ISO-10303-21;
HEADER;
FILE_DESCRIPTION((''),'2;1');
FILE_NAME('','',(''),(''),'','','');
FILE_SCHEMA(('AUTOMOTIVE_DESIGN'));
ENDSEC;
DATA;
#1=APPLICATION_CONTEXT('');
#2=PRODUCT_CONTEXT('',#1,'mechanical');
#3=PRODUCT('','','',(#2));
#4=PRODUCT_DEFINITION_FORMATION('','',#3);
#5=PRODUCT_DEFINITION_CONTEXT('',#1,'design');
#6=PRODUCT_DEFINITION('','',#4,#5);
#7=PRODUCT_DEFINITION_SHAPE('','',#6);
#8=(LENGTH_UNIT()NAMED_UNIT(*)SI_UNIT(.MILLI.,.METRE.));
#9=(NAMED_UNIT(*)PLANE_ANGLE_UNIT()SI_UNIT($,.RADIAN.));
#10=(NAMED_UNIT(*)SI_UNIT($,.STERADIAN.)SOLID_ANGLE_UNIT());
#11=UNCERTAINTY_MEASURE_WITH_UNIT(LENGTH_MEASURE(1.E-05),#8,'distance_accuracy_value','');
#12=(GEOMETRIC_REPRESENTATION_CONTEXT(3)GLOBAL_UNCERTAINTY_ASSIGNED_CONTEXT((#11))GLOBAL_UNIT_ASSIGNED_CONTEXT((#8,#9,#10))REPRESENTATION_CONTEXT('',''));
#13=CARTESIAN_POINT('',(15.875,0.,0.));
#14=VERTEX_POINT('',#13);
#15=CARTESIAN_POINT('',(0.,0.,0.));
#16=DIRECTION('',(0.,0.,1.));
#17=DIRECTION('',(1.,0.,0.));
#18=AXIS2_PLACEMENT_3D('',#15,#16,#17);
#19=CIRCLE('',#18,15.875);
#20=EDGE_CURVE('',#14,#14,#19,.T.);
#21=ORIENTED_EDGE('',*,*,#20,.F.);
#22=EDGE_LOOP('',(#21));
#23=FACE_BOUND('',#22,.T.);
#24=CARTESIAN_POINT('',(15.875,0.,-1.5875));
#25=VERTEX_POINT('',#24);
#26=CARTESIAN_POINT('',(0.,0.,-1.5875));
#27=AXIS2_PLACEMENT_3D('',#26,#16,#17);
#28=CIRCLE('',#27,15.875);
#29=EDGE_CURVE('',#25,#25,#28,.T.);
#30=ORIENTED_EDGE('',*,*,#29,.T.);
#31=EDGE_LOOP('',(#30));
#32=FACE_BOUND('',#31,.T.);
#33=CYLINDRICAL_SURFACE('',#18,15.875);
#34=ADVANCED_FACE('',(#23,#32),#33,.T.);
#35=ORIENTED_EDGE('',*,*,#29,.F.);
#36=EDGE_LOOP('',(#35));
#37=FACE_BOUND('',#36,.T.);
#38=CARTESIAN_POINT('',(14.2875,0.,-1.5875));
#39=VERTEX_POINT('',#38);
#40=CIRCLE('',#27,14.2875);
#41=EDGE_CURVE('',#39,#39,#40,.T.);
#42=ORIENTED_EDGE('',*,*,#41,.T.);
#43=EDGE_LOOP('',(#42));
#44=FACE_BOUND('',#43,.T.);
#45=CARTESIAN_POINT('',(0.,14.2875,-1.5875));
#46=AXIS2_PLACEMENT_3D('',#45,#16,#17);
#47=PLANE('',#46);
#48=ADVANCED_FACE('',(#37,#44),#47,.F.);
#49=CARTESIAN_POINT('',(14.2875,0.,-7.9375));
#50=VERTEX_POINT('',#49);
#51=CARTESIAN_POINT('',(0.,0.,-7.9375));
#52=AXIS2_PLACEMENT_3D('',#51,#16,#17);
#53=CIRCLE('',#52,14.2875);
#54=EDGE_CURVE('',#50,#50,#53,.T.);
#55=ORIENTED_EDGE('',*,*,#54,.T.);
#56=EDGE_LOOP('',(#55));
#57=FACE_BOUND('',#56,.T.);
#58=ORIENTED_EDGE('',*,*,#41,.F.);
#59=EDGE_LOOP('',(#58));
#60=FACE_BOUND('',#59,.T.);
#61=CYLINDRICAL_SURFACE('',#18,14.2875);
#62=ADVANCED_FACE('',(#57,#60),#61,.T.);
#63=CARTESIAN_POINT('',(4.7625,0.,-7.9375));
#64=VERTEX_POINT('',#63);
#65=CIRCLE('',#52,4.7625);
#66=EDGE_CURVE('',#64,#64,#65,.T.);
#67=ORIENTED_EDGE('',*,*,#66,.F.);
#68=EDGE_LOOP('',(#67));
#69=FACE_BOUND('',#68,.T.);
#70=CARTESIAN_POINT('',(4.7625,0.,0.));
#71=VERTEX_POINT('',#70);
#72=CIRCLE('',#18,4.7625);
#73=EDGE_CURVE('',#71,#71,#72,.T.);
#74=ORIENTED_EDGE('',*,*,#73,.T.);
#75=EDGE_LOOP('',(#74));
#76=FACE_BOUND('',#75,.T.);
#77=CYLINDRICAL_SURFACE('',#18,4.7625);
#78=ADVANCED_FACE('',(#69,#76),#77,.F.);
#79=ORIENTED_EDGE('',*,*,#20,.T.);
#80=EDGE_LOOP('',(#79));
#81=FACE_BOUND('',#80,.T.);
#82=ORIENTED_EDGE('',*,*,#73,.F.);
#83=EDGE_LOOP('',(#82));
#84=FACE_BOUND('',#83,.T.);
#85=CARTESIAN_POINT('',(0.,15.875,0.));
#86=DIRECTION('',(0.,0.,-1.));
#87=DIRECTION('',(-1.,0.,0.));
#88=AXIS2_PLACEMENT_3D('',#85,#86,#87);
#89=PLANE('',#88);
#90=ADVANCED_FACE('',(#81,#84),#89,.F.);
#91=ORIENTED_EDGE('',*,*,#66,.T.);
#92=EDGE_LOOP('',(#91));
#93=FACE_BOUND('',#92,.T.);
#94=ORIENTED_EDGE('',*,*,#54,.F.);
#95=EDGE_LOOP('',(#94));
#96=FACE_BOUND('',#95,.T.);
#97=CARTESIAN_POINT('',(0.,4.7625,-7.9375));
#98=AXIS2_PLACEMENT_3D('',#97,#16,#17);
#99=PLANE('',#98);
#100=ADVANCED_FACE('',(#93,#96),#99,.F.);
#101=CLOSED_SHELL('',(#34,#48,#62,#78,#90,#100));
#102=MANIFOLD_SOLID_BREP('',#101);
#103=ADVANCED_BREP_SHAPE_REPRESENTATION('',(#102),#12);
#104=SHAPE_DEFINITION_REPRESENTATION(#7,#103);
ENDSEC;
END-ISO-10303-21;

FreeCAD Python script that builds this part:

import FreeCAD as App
import Part
import Sketcher

V = App.Vector
Q = App.Units.Quantity

doc = App.newDocument("Part")
body = doc.addObject("PartDesign::Body", "Body")

# Sketch on YZ plane
sketch1 = body.newObject("Sketcher::SketchObject", "Sketch")
sketch1.AttachmentSupport = (doc.getObject("YZ_Plane"), [""])
sketch1.MapMode = "FlatFace"
sketch1.addGeometry([
    Part.LineSegment(V(4.7625, 0, 0), V(4.7625, -7.9375, 0)),  # 0
    Part.LineSegment(V(4.7625, -7.9375, 0), V(14.2875, -7.9375, 0)),  # 1
    Part.LineSegment(V(14.2875, -7.9375, 0), V(14.2875, -1.5875, 0)),  # 2
    Part.LineSegment(V(14.2875, -1.5875, 0), V(15.875, -1.5875, 0)),  # 3
    Part.LineSegment(V(15.875, -1.5875, 0), V(15.875, 0, 0)),  # 4
    Part.LineSegment(V(15.875, 0, 0), V(4.7625, 0, 0)),  # 5
], False)
sketch1.addConstraint([
    Sketcher.Constraint("Coincident", 0, 2, 1, 1),
    Sketcher.Constraint("Coincident", 1, 2, 2, 1),
    Sketcher.Constraint("Coincident", 2, 2, 3, 1),
    Sketcher.Constraint("Coincident", 3, 2, 4, 1),
    Sketcher.Constraint("Coincident", 4, 2, 5, 1),
    Sketcher.Constraint("Coincident", 5, 2, 0, 1),
    Sketcher.Constraint("Vertical", 0),
    Sketcher.Constraint("Horizontal", 1),
    Sketcher.Constraint("Vertical", 2),
    Sketcher.Constraint("Horizontal", 3),
    Sketcher.Constraint("Vertical", 4),
    Sketcher.Constraint("Horizontal", 5),
    Sketcher.Constraint("PointOnObject", 4, 2, -1),
    Sketcher.Constraint("Equal", 3, 4),
    Sketcher.Constraint("DistanceY", 2, 1, 2, 2, Q("0.25 in")),
    Sketcher.Constraint("DistanceX", 1, 1, 1, 2, Q("0.375 in")),
    Sketcher.Constraint("DistanceX", 3, 1, 3, 2, Q("0.0625 in")),
    Sketcher.Constraint("DistanceX", -1, 1, 0, 2, Q("0.1875 in")),
])
revolution = body.newObject("PartDesign::Revolution", "Revolution")
revolution.Profile = sketch1
revolution.ReferenceAxis = (sketch1, ["V_Axis"])
revolution.Angle = 360

doc.recompute()
